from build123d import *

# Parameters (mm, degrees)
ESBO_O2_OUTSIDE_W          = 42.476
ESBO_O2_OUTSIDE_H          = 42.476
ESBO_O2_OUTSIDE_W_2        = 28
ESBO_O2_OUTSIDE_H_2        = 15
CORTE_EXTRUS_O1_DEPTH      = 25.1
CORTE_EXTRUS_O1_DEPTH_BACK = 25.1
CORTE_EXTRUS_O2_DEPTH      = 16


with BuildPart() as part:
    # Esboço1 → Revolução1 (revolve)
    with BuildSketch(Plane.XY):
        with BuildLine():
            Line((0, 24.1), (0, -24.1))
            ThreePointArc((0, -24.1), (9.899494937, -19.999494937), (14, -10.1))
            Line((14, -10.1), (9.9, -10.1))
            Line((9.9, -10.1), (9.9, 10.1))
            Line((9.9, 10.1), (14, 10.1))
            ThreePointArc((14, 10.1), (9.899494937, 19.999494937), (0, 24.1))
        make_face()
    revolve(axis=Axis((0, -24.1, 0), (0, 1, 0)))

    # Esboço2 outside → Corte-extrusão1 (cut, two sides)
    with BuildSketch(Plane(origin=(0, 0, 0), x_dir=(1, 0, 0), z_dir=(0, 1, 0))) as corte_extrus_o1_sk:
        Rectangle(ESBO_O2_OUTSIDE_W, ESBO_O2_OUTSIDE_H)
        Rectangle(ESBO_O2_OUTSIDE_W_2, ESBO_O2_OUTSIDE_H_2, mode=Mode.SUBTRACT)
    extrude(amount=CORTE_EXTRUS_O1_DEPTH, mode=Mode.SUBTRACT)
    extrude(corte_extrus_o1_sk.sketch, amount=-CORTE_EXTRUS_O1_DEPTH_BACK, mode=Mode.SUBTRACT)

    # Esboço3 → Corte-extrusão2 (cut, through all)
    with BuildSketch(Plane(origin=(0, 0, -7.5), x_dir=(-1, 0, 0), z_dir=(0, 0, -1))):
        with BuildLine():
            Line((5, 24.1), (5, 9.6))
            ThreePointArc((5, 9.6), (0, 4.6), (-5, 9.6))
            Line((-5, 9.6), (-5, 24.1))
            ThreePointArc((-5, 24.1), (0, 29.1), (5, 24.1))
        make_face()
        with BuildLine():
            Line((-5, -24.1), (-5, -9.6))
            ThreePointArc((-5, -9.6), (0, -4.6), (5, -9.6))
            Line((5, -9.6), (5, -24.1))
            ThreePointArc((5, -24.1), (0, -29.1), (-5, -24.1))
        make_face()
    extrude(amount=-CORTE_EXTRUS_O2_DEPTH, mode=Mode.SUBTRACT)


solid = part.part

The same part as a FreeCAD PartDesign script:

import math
import FreeCAD as App
import Part
import Sketcher

doc = App.newDocument("Part")
body = doc.addObject("PartDesign::Body", "Body")

# Sketch on XY plane
sketch1 = body.newObject("Sketcher::SketchObject", "Sketch")
sketch1.AttachmentSupport = (doc.getObject("XY_Plane"), [""])
sketch1.MapMode = "FlatFace"
sketch1.addGeometry([
    Part.LineSegment(App.Vector(0, 24.1, 0), App.Vector(0, -24.1, 0)),  # 0
    Part.ArcOfCircle(Part.Circle(App.Vector(0, -10.1, 0), App.Vector(0, 0, 1), 14), math.radians(-90), math.radians(0)),  # 1
    Part.LineSegment(App.Vector(14, -10.1, 0), App.Vector(9.9, -10.1, 0)),  # 2
    Part.LineSegment(App.Vector(9.9, -10.1, 0), App.Vector(9.9, 10.1, 0)),  # 3
    Part.LineSegment(App.Vector(9.9, 10.1, 0), App.Vector(14, 10.1, 0)),  # 4
    Part.ArcOfCircle(Part.Circle(App.Vector(0, 10.1, 0), App.Vector(0, 0, 1), 14), math.radians(0), math.radians(90)),  # 5
], False)
sketch1.addConstraint([
    Sketcher.Constraint("Coincident", 0, 2, 1, 1),
    Sketcher.Constraint("Coincident", 1, 2, 2, 1),
    Sketcher.Constraint("Coincident", 2, 2, 3, 1),
    Sketcher.Constraint("Coincident", 3, 2, 4, 1),
    Sketcher.Constraint("Coincident", 4, 2, 5, 1),
    Sketcher.Constraint("Coincident", 5, 2, 0, 1),
    Sketcher.Constraint("Vertical", 0),
    Sketcher.Constraint("Horizontal", 2),
    Sketcher.Constraint("Vertical", 3),
    Sketcher.Constraint("Horizontal", 4),
    Sketcher.Constraint("Equal", 1, 5),
    Sketcher.Constraint("Symmetric", 1, 3, 5, 3, -1, 1),
    Sketcher.Constraint("Symmetric", 1, 2, 4, 2, -1),
    Sketcher.Constraint("PointOnObject", 0, 2, -2),
    Sketcher.Constraint("Horizontal", 5, 3, 3, 2),
    Sketcher.Constraint("Radius", 1, 14.0),
    Sketcher.Constraint("DistanceX", 2, 2, 2, 1, 4.1),
    Sketcher.Constraint("DistanceY", 0, 2, 0, 1, 48.2),
])
revolution = body.newObject("PartDesign::Revolution", "Revolution")
revolution.Profile = sketch1
revolution.ReferenceAxis = (sketch1, ["V_Axis"])
revolution.Angle = 360

# Sketch on XZ plane
sketch2 = body.newObject("Sketcher::SketchObject", "Sketch001")
sketch2.AttachmentSupport = (doc.getObject("XZ_Plane"), [""])
sketch2.MapMode = "FlatFace"
sketch2.addGeometry([
    Part.LineSegment(App.Vector(-21, -21, 0), App.Vector(-21, 21, 0)),  # 0
    Part.LineSegment(App.Vector(-21, 21, 0), App.Vector(21, 21, 0)),  # 1
    Part.LineSegment(App.Vector(21, 21, 0), App.Vector(21, -21, 0)),  # 2
    Part.LineSegment(App.Vector(21, -21, 0), App.Vector(-21, -21, 0)),  # 3
    Part.LineSegment(App.Vector(14, 8, 0), App.Vector(-14, 8, 0)),  # 4
    Part.LineSegment(App.Vector(-14, 8, 0), App.Vector(-14, -8, 0)),  # 5
    Part.LineSegment(App.Vector(-14, -8, 0), App.Vector(14, -8, 0)),  # 6
    Part.LineSegment(App.Vector(14, -8, 0), App.Vector(14, 8, 0)),  # 7
], False)
sketch2.addConstraint([
    Sketcher.Constraint("Coincident", 0, 2, 1, 1),
    Sketcher.Constraint("Coincident", 1, 2, 2, 1),
    Sketcher.Constraint("Coincident", 2, 2, 3, 1),
    Sketcher.Constraint("Coincident", 3, 2, 0, 1),
    Sketcher.Constraint("Coincident", 4, 2, 5, 1),
    Sketcher.Constraint("Coincident", 5, 2, 6, 1),
    Sketcher.Constraint("Coincident", 6, 2, 7, 1),
    Sketcher.Constraint("Coincident", 7, 2, 4, 1),
    Sketcher.Constraint("Vertical", 0),
    Sketcher.Constraint("Horizontal", 1),
    Sketcher.Constraint("Vertical", 2),
    Sketcher.Constraint("Horizontal", 3),
    Sketcher.Constraint("Horizontal", 4),
    Sketcher.Constraint("Vertical", 5),
    Sketcher.Constraint("Horizontal", 6),
    Sketcher.Constraint("Vertical", 7),
    Sketcher.Constraint("Symmetric", 0, 2, 2, 2, -1, 1),
    Sketcher.Constraint("Symmetric", 4, 2, 6, 2, -1, 1),
    Sketcher.Constraint("Equal", 3, 0),
    Sketcher.Constraint("DistanceX", 4, 2, 4, 1, 28.0),
    Sketcher.Constraint("DistanceY", 5, 2, 5, 1, 15.0),
    Sketcher.Constraint("DistanceX", 1, 1, 1, 2, 42.476),
])
pocket1 = body.newObject("PartDesign::Pocket", "Pocket")
pocket1.Profile = sketch2
pocket1.Type = "ThroughAll"
pocket1.Midplane = True

# Sketch on XY plane
sketch3 = body.newObject("Sketcher::SketchObject", "Sketch002")
sketch3.AttachmentSupport = (doc.getObject("XY_Plane"), [""])
sketch3.MapMode = "FlatFace"
sketch3.AttachmentOffset = App.Placement(App.Vector(0, 0, -7.5), App.Rotation())
sketch3.addGeometry([
    Part.LineSegment(App.Vector(-5, 10, 0), App.Vector(-5, 24, 0)),  # 0
    Part.ArcOfCircle(Part.Circle(App.Vector(0, 24, 0), App.Vector(0, 0, 1), 5), math.radians(0), math.radians(180)),  # 1
    Part.LineSegment(App.Vector(5, 24, 0), App.Vector(5, 10, 0)),  # 2
    Part.ArcOfCircle(Part.Circle(App.Vector(0, 10, 0), App.Vector(0, 0, 1), 5), math.radians(180), math.radians(360)),  # 3
    Part.LineSegment(App.Vector(5, -10, 0), App.Vector(5, -24, 0)),  # 4
    Part.ArcOfCircle(Part.Circle(App.Vector(0, -24, 0), App.Vector(0, 0, 1), 5), math.radians(180), math.radians(360)),  # 5
    Part.LineSegment(App.Vector(-5, -24, 0), App.Vector(-5, -10, 0)),  # 6
    Part.ArcOfCircle(Part.Circle(App.Vector(0, -10, 0), App.Vector(0, 0, 1), 5), math.radians(0), math.radians(180)),  # 7
], False)
sketch3.addConstraint([
    Sketcher.Constraint("Tangent", 0, 2, 1, 2),
    Sketcher.Constraint("Tangent", 1, 1, 2, 1),
    Sketcher.Constraint("Tangent", 2, 2, 3, 2),
    Sketcher.Constraint("Tangent", 3, 1, 0, 1),
    Sketcher.Constraint("Tangent", 4, 2, 5, 2),
    Sketcher.Constraint("Tangent", 5, 1, 6, 1),
    Sketcher.Constraint("Tangent", 6, 2, 7, 2),
    Sketcher.Constraint("Tangent", 7, 1, 4, 1),
    Sketcher.Constraint("Vertical", 0),
    Sketcher.Constraint("Vertical", 2),
    Sketcher.Constraint("Vertical", 4),
    Sketcher.Constraint("Vertical", 6),
    Sketcher.Constraint("Equal", 3, 5),
    Sketcher.Constraint("Symmetric", 1, 3, 5, 3, -1, 1),
    Sketcher.Constraint("Symmetric", 3, 3, 7, 3, -1),
    Sketcher.Constraint("Radius", 1, 5.0),
    Sketcher.Constraint("DistanceY", 0, 1, 0, 2, 14.5),
    Sketcher.Constraint("DistanceY", -1, 1, 1, 3, 24.1),
])
pocket2 = body.newObject("PartDesign::Pocket", "Pocket001")
pocket2.Profile = sketch3
pocket2.Type = "ThroughAll"
pocket2.Reversed = True

doc.recompute()
